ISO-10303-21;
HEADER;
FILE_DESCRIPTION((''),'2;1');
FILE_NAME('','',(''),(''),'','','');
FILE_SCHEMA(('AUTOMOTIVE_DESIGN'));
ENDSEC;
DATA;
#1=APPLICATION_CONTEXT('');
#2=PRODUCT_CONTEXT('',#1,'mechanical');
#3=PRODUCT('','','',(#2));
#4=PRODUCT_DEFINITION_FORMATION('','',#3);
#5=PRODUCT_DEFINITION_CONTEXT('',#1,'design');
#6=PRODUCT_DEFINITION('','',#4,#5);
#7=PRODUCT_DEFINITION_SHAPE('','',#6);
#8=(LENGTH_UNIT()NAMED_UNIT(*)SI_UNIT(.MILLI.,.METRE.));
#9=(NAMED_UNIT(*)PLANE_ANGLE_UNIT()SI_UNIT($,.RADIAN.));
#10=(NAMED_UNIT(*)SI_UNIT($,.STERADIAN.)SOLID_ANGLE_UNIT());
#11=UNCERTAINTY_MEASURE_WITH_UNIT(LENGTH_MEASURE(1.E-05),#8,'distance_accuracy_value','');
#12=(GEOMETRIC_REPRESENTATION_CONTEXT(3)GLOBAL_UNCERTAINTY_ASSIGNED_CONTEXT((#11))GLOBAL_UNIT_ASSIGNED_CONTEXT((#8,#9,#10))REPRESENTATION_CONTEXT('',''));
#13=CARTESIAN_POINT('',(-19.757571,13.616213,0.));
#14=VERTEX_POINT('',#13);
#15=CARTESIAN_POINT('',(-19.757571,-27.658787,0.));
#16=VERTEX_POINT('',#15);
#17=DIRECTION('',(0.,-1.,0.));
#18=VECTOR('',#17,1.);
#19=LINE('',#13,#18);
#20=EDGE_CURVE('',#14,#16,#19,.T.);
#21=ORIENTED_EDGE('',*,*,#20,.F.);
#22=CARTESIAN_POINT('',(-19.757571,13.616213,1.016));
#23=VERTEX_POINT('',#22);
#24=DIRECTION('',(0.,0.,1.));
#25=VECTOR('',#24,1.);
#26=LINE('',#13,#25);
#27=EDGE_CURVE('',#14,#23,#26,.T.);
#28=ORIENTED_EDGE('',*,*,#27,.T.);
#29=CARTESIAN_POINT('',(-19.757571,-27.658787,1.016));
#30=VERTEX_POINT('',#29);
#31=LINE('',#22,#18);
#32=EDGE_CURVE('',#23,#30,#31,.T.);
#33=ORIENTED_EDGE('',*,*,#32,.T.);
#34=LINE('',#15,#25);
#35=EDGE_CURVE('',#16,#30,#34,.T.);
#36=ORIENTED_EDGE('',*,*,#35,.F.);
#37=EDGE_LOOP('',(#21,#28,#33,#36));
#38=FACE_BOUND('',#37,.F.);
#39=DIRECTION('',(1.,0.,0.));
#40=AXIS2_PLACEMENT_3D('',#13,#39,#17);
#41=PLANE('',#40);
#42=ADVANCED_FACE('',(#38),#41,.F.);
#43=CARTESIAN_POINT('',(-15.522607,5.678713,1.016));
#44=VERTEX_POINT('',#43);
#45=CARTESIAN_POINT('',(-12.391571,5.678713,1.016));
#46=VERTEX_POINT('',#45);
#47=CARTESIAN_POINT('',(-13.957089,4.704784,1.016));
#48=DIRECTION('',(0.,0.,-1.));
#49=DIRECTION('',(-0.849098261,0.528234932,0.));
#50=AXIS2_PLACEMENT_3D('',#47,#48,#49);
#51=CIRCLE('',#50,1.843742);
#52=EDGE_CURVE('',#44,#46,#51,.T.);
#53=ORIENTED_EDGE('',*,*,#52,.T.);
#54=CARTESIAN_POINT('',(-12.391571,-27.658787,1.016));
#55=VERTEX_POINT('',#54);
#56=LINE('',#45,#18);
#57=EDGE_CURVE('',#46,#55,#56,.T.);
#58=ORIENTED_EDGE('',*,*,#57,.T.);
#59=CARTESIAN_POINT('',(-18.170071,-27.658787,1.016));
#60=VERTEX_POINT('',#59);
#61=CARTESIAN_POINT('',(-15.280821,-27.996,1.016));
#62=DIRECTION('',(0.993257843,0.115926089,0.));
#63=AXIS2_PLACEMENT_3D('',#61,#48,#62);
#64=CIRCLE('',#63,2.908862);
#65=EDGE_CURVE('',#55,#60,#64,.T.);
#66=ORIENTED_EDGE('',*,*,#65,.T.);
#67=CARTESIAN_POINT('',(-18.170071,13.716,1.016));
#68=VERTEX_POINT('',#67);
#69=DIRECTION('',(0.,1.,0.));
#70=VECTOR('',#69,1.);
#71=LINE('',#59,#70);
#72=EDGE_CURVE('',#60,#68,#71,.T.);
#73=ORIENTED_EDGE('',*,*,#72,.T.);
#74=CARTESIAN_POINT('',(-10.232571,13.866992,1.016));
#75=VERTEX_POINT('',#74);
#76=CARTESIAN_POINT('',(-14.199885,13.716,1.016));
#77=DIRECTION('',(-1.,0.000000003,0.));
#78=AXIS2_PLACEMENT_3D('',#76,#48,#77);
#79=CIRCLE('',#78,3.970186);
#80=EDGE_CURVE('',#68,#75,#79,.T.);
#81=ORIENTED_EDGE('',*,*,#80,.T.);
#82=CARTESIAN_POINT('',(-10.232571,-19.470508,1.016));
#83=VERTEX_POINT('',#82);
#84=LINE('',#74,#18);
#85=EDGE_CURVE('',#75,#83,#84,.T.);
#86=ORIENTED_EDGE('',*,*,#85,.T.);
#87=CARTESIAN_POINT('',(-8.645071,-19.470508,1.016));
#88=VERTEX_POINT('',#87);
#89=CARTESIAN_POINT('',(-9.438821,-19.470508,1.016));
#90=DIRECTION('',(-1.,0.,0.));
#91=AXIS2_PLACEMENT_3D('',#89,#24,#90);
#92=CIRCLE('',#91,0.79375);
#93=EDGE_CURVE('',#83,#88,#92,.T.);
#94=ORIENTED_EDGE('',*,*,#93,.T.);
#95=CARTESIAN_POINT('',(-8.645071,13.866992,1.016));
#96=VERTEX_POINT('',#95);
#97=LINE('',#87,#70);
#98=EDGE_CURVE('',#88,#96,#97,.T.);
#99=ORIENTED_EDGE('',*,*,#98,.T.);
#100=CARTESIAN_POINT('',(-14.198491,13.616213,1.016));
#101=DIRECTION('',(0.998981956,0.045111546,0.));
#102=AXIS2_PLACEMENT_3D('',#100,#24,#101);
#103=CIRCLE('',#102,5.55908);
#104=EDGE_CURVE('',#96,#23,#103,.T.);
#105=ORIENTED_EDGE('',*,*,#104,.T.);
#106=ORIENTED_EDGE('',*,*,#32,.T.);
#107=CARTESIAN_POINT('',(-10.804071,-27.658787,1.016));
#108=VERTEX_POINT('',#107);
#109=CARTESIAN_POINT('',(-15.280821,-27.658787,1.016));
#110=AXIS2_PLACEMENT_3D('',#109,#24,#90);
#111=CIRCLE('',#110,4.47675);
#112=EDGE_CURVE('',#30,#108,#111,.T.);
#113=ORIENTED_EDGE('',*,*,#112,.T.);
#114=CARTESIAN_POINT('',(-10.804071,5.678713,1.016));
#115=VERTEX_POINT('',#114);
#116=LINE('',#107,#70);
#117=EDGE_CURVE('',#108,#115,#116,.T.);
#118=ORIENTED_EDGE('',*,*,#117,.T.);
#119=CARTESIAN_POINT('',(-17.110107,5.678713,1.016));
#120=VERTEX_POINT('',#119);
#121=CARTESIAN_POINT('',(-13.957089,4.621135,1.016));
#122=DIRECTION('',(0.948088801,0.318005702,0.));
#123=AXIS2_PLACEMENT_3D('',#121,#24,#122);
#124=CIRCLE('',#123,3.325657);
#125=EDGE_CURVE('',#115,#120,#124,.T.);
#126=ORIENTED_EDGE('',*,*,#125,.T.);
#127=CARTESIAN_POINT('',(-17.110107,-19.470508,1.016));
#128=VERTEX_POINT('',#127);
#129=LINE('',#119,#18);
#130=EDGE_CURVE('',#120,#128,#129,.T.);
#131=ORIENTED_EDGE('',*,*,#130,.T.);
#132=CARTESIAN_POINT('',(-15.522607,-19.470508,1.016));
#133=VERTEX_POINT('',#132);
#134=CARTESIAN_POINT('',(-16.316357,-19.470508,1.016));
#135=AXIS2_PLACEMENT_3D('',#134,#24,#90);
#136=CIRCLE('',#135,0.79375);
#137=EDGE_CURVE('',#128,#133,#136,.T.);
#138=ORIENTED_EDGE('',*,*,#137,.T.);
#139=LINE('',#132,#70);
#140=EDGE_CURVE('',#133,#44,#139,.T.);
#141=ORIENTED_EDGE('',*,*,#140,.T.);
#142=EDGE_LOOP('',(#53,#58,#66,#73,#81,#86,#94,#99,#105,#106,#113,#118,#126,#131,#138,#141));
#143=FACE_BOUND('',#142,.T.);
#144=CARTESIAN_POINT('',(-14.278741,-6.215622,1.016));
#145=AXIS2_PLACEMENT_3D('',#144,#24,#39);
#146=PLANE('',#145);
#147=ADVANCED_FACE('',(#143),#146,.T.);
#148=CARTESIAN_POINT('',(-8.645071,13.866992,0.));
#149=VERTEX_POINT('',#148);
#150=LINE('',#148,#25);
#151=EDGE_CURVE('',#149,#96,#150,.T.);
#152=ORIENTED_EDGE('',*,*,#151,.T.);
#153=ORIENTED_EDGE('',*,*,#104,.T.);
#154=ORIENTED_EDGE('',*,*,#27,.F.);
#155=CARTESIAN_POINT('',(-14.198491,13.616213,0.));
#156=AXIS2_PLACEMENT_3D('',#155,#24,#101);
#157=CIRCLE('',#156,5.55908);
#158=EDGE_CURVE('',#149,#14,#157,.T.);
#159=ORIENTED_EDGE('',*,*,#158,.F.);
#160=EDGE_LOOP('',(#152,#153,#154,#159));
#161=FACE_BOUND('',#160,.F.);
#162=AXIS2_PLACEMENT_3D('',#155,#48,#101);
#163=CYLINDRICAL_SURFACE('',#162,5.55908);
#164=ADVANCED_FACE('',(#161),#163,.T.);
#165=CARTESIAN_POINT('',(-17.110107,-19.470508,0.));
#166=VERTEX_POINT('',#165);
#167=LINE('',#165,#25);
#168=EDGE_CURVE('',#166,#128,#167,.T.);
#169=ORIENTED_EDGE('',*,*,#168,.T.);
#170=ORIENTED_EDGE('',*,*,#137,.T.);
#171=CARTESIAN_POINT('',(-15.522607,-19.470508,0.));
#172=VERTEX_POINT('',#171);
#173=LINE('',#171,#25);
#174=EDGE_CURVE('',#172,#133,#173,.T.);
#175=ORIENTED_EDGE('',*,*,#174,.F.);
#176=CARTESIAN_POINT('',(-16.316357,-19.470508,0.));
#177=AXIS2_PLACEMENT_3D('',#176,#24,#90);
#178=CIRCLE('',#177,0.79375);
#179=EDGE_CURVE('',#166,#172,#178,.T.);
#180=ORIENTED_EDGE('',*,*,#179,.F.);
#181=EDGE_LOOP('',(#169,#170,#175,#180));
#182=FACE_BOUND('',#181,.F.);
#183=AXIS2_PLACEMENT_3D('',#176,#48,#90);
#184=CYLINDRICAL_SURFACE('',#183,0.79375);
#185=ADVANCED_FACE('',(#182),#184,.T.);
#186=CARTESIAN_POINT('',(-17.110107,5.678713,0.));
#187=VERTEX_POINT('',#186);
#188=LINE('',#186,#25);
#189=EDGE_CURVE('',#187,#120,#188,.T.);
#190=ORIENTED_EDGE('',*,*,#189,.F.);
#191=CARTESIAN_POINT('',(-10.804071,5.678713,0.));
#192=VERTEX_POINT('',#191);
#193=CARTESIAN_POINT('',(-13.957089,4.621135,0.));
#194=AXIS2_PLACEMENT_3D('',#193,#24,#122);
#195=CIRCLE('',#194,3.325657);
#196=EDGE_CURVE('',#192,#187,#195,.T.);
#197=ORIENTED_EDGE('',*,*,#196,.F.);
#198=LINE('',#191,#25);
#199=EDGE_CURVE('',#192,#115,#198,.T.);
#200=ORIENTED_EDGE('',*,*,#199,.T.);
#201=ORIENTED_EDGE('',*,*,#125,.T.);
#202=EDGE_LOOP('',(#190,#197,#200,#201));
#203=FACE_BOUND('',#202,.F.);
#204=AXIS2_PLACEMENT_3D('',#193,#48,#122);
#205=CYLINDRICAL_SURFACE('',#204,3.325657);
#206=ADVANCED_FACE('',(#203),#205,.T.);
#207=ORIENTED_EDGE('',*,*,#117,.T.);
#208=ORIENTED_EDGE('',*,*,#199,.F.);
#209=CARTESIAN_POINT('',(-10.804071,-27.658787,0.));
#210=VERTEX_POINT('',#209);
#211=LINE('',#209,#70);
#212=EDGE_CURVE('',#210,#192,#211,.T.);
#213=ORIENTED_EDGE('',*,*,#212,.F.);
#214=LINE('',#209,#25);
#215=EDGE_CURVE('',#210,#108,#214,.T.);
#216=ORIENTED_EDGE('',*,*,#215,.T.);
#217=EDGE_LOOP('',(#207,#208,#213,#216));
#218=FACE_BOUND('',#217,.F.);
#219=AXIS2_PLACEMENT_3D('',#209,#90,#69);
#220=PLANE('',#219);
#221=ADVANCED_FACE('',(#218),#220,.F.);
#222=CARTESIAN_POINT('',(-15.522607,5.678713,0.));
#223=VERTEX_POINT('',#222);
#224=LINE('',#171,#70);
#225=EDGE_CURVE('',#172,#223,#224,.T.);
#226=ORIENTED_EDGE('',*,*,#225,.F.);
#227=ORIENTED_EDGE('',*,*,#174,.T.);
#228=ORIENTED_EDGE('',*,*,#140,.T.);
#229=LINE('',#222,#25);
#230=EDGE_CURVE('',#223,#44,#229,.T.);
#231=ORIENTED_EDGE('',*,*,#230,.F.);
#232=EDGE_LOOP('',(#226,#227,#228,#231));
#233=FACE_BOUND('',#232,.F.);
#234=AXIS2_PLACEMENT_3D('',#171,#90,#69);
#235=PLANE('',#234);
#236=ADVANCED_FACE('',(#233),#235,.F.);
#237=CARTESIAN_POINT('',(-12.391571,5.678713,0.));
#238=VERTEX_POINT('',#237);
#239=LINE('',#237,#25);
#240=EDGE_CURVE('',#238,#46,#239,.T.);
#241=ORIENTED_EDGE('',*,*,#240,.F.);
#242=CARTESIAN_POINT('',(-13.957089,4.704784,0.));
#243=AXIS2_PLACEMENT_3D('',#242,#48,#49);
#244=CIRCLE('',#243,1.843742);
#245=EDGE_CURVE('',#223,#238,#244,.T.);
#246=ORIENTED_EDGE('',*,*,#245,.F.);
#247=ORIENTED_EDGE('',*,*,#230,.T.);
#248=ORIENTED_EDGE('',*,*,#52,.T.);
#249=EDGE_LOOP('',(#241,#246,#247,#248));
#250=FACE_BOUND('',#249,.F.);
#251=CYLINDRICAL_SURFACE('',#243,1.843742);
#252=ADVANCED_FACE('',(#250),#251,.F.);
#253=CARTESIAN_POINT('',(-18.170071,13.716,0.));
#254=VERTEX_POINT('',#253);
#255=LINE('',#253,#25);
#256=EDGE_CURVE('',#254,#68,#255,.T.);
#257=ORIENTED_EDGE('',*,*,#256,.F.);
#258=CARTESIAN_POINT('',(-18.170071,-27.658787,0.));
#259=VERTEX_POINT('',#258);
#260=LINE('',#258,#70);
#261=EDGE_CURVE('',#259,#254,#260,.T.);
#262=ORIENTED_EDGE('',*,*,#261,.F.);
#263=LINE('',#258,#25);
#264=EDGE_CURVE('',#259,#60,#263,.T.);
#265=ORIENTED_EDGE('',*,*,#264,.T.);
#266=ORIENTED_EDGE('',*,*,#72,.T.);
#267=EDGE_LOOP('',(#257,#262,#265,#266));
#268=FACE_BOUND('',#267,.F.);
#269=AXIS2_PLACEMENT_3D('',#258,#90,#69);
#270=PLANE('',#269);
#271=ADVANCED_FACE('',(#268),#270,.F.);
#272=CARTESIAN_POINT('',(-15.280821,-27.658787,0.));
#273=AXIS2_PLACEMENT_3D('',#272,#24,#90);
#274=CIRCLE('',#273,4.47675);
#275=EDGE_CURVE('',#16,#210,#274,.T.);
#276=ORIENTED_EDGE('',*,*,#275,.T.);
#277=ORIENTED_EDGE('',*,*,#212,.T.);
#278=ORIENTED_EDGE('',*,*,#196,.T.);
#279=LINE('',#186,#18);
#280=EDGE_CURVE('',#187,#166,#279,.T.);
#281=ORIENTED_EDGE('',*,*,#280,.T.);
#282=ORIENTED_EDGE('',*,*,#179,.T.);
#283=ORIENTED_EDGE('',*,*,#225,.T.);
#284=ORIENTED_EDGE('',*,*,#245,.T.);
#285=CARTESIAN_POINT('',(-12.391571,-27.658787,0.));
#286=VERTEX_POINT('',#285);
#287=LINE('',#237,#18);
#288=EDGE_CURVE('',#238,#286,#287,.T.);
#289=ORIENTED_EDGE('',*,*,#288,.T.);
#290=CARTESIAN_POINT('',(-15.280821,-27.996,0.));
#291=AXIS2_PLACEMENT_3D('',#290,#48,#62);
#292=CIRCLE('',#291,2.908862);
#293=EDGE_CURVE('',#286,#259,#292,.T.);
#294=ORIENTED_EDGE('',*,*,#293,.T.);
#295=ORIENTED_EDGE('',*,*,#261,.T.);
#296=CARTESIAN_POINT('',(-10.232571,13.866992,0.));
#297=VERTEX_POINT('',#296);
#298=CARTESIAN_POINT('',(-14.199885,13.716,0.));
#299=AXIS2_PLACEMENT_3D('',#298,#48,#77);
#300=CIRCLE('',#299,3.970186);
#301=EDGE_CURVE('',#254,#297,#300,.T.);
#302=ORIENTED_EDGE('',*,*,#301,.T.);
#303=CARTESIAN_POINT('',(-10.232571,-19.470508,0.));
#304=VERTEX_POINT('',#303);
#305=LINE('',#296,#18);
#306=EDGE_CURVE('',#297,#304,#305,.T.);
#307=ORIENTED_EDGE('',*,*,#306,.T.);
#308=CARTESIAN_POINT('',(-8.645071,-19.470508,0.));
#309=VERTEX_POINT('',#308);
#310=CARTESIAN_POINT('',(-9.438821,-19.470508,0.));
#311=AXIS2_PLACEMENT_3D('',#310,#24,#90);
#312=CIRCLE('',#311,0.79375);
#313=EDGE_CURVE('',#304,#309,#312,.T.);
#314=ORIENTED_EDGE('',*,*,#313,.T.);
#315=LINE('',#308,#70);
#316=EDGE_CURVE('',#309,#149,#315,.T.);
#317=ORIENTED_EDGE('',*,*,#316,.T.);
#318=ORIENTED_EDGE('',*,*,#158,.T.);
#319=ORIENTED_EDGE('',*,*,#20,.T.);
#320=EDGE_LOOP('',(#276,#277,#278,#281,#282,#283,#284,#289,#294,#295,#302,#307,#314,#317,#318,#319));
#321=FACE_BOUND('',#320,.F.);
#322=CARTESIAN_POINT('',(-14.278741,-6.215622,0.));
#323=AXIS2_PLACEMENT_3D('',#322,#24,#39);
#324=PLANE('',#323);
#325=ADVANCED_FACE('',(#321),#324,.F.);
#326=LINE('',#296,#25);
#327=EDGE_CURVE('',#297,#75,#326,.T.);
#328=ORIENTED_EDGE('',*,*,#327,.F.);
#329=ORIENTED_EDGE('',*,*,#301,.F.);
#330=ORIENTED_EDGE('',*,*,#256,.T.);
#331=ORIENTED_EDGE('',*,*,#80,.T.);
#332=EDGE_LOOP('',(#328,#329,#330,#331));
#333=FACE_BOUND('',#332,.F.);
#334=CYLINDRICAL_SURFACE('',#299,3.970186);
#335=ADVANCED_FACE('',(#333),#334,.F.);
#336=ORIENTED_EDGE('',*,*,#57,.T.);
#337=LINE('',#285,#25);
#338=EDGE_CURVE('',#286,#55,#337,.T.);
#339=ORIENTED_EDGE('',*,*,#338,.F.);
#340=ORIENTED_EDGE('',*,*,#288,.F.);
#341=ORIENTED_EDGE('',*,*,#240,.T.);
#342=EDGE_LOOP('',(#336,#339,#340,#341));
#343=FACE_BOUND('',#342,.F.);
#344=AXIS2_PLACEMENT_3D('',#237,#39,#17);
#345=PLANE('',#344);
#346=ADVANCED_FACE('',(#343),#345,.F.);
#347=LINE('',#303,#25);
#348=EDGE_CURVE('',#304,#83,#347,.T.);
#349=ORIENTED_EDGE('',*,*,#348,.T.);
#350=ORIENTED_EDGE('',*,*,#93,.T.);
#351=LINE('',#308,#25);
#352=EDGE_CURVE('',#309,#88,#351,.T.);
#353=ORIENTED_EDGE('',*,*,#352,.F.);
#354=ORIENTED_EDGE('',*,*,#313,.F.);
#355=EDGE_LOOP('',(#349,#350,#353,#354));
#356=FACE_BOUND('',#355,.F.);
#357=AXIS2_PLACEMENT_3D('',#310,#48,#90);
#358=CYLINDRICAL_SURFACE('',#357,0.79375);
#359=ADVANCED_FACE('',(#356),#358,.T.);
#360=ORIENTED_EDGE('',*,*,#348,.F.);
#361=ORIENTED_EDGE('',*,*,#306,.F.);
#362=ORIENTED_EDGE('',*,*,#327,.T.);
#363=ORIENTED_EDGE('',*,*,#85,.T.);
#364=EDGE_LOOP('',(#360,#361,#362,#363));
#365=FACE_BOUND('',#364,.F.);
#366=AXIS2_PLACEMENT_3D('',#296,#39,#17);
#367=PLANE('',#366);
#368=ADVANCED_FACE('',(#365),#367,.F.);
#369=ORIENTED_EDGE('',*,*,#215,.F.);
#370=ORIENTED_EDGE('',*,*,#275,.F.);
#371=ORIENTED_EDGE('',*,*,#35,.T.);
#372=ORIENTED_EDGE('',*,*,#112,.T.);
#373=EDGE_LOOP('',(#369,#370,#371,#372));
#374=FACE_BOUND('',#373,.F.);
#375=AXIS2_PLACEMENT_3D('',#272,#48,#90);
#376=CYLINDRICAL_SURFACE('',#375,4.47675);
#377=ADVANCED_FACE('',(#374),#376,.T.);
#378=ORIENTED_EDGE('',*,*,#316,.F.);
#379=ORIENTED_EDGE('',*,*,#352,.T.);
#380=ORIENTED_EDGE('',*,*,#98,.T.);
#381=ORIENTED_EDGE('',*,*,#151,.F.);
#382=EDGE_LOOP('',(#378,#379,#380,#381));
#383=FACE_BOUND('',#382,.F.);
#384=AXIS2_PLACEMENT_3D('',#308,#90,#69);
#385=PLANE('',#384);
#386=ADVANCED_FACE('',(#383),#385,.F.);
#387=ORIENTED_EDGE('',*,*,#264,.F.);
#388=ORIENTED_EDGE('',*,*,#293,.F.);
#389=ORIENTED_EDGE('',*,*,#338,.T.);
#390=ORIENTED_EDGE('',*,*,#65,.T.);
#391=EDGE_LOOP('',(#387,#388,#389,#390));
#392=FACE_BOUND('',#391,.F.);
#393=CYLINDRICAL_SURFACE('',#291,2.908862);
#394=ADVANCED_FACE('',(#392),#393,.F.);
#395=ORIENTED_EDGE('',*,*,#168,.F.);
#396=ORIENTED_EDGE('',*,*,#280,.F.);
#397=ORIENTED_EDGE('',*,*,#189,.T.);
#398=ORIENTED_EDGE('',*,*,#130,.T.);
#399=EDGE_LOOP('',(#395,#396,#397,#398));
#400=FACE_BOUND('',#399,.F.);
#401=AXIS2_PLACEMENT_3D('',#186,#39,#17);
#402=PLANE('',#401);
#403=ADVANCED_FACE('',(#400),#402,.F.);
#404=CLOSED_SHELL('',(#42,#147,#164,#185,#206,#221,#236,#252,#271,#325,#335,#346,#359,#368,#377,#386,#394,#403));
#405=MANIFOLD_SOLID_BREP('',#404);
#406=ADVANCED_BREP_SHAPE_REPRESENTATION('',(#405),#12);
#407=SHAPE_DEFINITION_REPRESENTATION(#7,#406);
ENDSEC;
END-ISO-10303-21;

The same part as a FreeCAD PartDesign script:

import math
import FreeCAD as App
import Part
import Sketcher
from FreeCAD import Vector
Q = App.Units.Quantity

doc = App.newDocument("Part")
body = doc.addObject("PartDesign::Body", "Body")

# Sketch on XY plane
sketch1 = doc.addObject("Sketcher::SketchObject", "Sketch")
body.addObject(sketch1)
sketch1.AttachmentSupport = (doc.XY_Plane, [""])
sketch1.MapMode = "FlatFace"
sketch1.addGeometry([
    Part.ArcOfCircle(Part.Circle(Vector(-14.198491, 13.616213, 0), Vector(0, 0, 1), 5.55908), math.radians(2.585579), math.radians(180.000003)),  # 0
    Part.LineSegment(Vector(-19.757571, 13.616213, 0), Vector(-19.757571, -27.658787, 0)),  # 1
    Part.ArcOfCircle(Part.Circle(Vector(-15.280821, -27.658787, 0), Vector(0, 0, 1), 4.47675), math.radians(180), math.radians(360)),  # 2
    Part.LineSegment(Vector(-10.804071, -27.658787, 0), Vector(-10.804071, 5.678713, 0)),  # 3
    Part.ArcOfCircle(Part.Circle(Vector(-13.957089, 4.621135, 0), Vector(0, 0, 1), 3.325657), math.radians(18.542361), math.radians(161.457639)),  # 4
    Part.LineSegment(Vector(-17.110107, 5.678713, 0), Vector(-17.110107, -19.470508, 0)),  # 5
    Part.ArcOfCircle(Part.Circle(Vector(-16.316357, -19.470508, 0), Vector(0, 0, 1), 0.79375), math.radians(180), math.radians(360)),  # 6
    Part.LineSegment(Vector(-15.522607, -19.470508, 0), Vector(-15.522607, 5.678713, 0)),  # 7
    Part.ArcOfCircle(Part.Circle(Vector(-13.957089, 4.704784, 0), Vector(0, 0, 1), 1.843742), math.radians(31.886274), math.radians(148.113726)),  # 8
    Part.LineSegment(Vector(-12.391571, 5.678713, 0), Vector(-12.391571, -27.658787, 0)),  # 9
    Part.ArcOfCircle(Part.Circle(Vector(-15.280821, -27.996, 0), Vector(0, 0, 1), 2.908862), math.radians(173.342957), math.radians(366.657043)),  # 10
    Part.LineSegment(Vector(-18.170071, -27.658787, 0), Vector(-18.170071, 13.716, 0)),  # 11
    Part.ArcOfCircle(Part.Circle(Vector(-14.199885, 13.716, 0), Vector(0, 0, 1), 3.970186), math.radians(2.179568), math.radians(180)),  # 12
    Part.LineSegment(Vector(-10.232571, 13.866992, 0), Vector(-10.232571, -19.470508, 0)),  # 13
    Part.ArcOfCircle(Part.Circle(Vector(-9.438821, -19.470508, 0), Vector(0, 0, 1), 0.79375), math.radians(180), math.radians(360)),  # 14
    Part.LineSegment(Vector(-8.645071, -19.470508, 0), Vector(-8.645071, 13.866992, 0)),  # 15
], False)
sketch1.addConstraint([
    Sketcher.Constraint("Coincident", 0, 2, 1, 1),
    Sketcher.Constraint("Coincident", 1, 2, 2, 1),
    Sketcher.Constraint("Coincident", 2, 2, 3, 1),
    Sketcher.Constraint("Coincident", 3, 2, 4, 1),
    Sketcher.Constraint("Coincident", 4, 2, 5, 1),
    Sketcher.Constraint("Coincident", 5, 2, 6, 1),
    Sketcher.Constraint("Coincident", 6, 2, 7, 1),
    Sketcher.Constraint("Coincident", 7, 2, 8, 2),
    Sketcher.Constraint("Coincident", 8, 1, 9, 1),
    Sketcher.Constraint("Coincident", 9, 2, 10, 2),
    Sketcher.Constraint("Coincident", 10, 1, 11, 1),
    Sketcher.Constraint("Coincident", 11, 2, 12, 2),
    Sketcher.Constraint("Coincident", 12, 1, 13, 1),
    Sketcher.Constraint("Coincident", 13, 2, 14, 1),
    Sketcher.Constraint("Coincident", 14, 2, 15, 1),
    Sketcher.Constraint("Coincident", 15, 2, 0, 1),
    Sketcher.Constraint("Vertical", 1),
    Sketcher.Constraint("Vertical", 3),
    Sketcher.Constraint("Vertical", 5),
    Sketcher.Constraint("Vertical", 7),
    Sketcher.Constraint("Vertical", 9),
    Sketcher.Constraint("Vertical", 11),
    Sketcher.Constraint("Vertical", 13),
    Sketcher.Constraint("Vertical", 15),
    Sketcher.Constraint("Radius", 6, Q("0.03125 in")),
    Sketcher.Constraint("Radius", 14, Q("0.03125 in")),
    Sketcher.Constraint("DistanceY", 1, 2, 1, 1, Q("1.625 in")),
    Sketcher.Constraint("DistanceY", 3, 1, 3, 2, Q("1.3125 in")),
    Sketcher.Constraint("DistanceY", 9, 2, 9, 1, Q("1.3125 in")),
    Sketcher.Constraint("DistanceY", 13, 2, 13, 1, Q("1.3125 in")),
    Sketcher.Constraint("DistanceY", 15, 1, 15, 2, Q("1.3125 in")),
    Sketcher.Constraint("DistanceY", -1, 1, 12, 3, Q("0.54 in")),
    Sketcher.Constraint("DistanceY", -1, 1, 11, 2, Q("0.54 in")),
    Sketcher.Constraint("DistanceX", 2, 3, 14, 3, Q("0.23 in")),
    Sketcher.Constraint("DistanceX", 10, 3, 14, 3, Q("0.23 in")),
    Sketcher.Constraint("DistanceX", 1, 2, 9, 2, Q("0.29 in")),
    Sketcher.Constraint("DistanceX", 10, 1, 2, 2, Q("0.29 in")),
    Sketcher.Constraint("Radius", 0, Q("5.55908 mm")),
    Sketcher.Constraint("Radius", 2, Q("4.47675 mm")),
    Sketcher.Constraint("Radius", 8, Q("1.843742 mm")),
    Sketcher.Constraint("DistanceY", 2, 3, 0, 3, Q("1.625 in")),
    Sketcher.Constraint("DistanceY", 3, 2, 0, 3, Q("0.3125 in")),
    Sketcher.Constraint("DistanceY", 3, 2, 0, 2, Q("0.3125 in")),
    Sketcher.Constraint("DistanceY", 4, 2, 0, 2, Q("0.3125 in")),
    Sketcher.Constraint("DistanceY", 7, 2, 0, 3, Q("0.3125 in")),
    Sketcher.Constraint("Radius", 4, Q("3.325657 mm")),
    Sketcher.Constraint("Radius", 10, Q("2.908862 mm")),
    Sketcher.Constraint("Radius", 12, Q("3.970186 mm")),
    Sketcher.Constraint("DistanceY", 5, 2, 5, 1, Q("25.149221 mm")),
    Sketcher.Constraint("DistanceY", 7, 1, 7, 2, Q("25.149221 mm")),
    Sketcher.Constraint("DistanceY", 10, 3, -1, 1, Q("27.996 mm")),
    Sketcher.Constraint("DistanceX", 0, 3, -1, 1, Q("14.198491 mm")),
    Sketcher.Constraint("DistanceX", 4, 3, -1, 1, Q("13.957089 mm")),
    Sketcher.Constraint("DistanceX", 8, 3, -1, 1, Q("13.957089 mm")),
    Sketcher.Constraint("DistanceY", 2, 3, 6, 3, Q("8.188279 mm")),
    Sketcher.Constraint("DistanceY", 2, 3, 14, 3, Q("8.188279 mm")),
])
pad1 = doc.addObject("PartDesign::Pad", "Pad")
body.addObject(pad1)
pad1.Profile = sketch1
pad1.Length = Q("0.04 in")

doc.recompute()
